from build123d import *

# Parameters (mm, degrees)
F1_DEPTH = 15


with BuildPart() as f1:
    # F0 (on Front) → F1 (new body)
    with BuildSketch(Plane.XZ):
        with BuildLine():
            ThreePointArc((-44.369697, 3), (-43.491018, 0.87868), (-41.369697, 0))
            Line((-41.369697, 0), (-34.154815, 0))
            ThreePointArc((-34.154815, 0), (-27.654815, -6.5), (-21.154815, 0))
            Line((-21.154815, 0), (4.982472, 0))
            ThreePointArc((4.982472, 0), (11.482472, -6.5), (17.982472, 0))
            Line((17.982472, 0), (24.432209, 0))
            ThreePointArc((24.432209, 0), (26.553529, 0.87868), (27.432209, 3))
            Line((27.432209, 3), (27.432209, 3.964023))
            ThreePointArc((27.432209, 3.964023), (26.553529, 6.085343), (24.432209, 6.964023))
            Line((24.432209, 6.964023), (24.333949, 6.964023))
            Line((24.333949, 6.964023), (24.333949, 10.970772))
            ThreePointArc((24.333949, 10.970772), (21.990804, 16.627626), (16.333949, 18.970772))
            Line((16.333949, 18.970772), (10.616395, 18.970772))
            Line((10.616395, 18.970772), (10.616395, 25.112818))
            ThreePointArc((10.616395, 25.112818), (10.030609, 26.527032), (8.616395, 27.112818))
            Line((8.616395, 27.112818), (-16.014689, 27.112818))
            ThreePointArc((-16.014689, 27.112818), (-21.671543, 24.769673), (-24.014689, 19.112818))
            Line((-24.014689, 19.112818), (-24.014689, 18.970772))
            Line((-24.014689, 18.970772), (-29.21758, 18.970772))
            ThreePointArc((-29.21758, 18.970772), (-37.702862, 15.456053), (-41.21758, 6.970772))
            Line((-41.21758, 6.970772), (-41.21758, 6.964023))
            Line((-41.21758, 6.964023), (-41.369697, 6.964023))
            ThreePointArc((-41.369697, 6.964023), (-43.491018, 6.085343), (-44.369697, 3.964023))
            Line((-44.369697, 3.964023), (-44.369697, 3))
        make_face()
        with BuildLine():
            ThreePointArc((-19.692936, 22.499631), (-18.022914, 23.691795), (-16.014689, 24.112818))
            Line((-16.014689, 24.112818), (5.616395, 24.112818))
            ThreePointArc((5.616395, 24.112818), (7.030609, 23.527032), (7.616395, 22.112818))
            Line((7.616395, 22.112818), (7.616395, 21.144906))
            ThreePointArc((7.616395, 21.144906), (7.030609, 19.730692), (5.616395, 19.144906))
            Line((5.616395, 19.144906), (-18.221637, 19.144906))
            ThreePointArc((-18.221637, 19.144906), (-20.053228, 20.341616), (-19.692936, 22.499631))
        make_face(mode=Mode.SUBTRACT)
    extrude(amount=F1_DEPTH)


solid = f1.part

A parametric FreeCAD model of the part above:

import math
import FreeCAD as App
import Part
import Sketcher

doc = App.newDocument("Part")
body = doc.addObject("PartDesign::Body", "Body")

# Sketch on XZ plane
sketch1 = body.newObject("Sketcher::SketchObject", "Sketch")
sketch1.AttachmentSupport = (doc.getObject("XZ_Plane"), [""])
sketch1.MapMode = "FlatFace"
sketch1.addGeometry(Part.ArcOfCircle(Part.Circle(App.Vector(-41.369698, 2.999999, 0), App.Vector(0, 0, 1), 2.999999), math.radians(179.99999), math.radians(270.00001)), False)
sketch1.addGeometry(Part.LineSegment(App.Vector(-41.369697, 0, 0), App.Vector(-34.154815, 0, 0)), False)
sketch1.addGeometry(Part.ArcOfCircle(Part.Circle(App.Vector(-27.654815, 0, 0), App.Vector(0, 0, 1), 6.5), math.radians(180), math.radians(360)), False)
sketch1.addGeometry(Part.LineSegment(App.Vector(-21.154815, 0, 0), App.Vector(4.982472, 0, 0)), False)
sketch1.addGeometry(Part.ArcOfCircle(Part.Circle(App.Vector(11.482472, 0, 0), App.Vector(0, 0, 1), 6.5), math.radians(180), math.radians(360)), False)
sketch1.addGeometry(Part.LineSegment(App.Vector(17.982472, 0, 0), App.Vector(24.432209, 0, 0)), False)
sketch1.addGeometry(Part.ArcOfCircle(Part.Circle(App.Vector(24.432208, 3.000001, 0), App.Vector(0, 0, 1), 3.000001), math.radians(-89.999978), math.radians(-0.000022)), False)
sketch1.addGeometry(Part.LineSegment(App.Vector(27.432209, 3, 0), App.Vector(27.432209, 3.964023, 0)), False)
sketch1.addGeometry(Part.ArcOfCircle(Part.Circle(App.Vector(24.432208, 3.964022, 0), App.Vector(0, 0, 1), 3.000001), math.radians(0.000022), math.radians(89.999978)), False)
sketch1.addGeometry(Part.LineSegment(App.Vector(24.432209, 6.964023, 0), App.Vector(24.333949, 6.964023, 0)), False)
sketch1.addGeometry(Part.LineSegment(App.Vector(24.333949, 6.964023, 0), App.Vector(24.333949, 10.970772, 0)), False)
sketch1.addGeometry(Part.ArcOfCircle(Part.Circle(App.Vector(16.33395, 10.970773, 0), App.Vector(0, 0, 1), 7.999999), math.radians(-0.000006), math.radians(90.000006)), False)
sketch1.addGeometry(Part.LineSegment(App.Vector(16.333949, 18.970772, 0), App.Vector(10.616395, 18.970772, 0)), False)
sketch1.addGeometry(Part.LineSegment(App.Vector(10.616395, 18.970772, 0), App.Vector(10.616395, 25.112818, 0)), False)
sketch1.addGeometry(Part.ArcOfCircle(Part.Circle(App.Vector(8.616396, 25.112819, 0), App.Vector(0, 0, 1), 1.999999), math.radians(-0.000043), math.radians(90.000043)), False)
sketch1.addGeometry(Part.LineSegment(App.Vector(8.616395, 27.112818, 0), App.Vector(-16.014689, 27.112818, 0)), False)
sketch1.addGeometry(Part.ArcOfCircle(Part.Circle(App.Vector(-16.01469, 19.112819, 0), App.Vector(0, 0, 1), 7.999999), math.radians(89.999994), math.radians(180.000006)), False)
sketch1.addGeometry(Part.LineSegment(App.Vector(-24.014689, 19.112818, 0), App.Vector(-24.014689, 18.970772, 0)), False)
sketch1.addGeometry(Part.LineSegment(App.Vector(-24.014689, 18.970772, 0), App.Vector(-29.21758, 18.970772, 0)), False)
sketch1.addGeometry(Part.ArcOfCircle(Part.Circle(App.Vector(-29.21758, 6.970772, 0), App.Vector(0, 0, 1), 12), math.radians(89.999998), math.radians(180.000002)), False)
sketch1.addGeometry(Part.LineSegment(App.Vector(-41.21758, 6.970772, 0), App.Vector(-41.21758, 6.964023, 0)), False)
sketch1.addGeometry(Part.LineSegment(App.Vector(-41.21758, 6.964023, 0), App.Vector(-41.369697, 6.964023, 0)), False)
sketch1.addGeometry(Part.ArcOfCircle(Part.Circle(App.Vector(-41.369698, 3.964024, 0), App.Vector(0, 0, 1), 2.999999), math.radians(89.99999), math.radians(180.00001)), False)
sketch1.addGeometry(Part.LineSegment(App.Vector(-44.369697, 3.964023, 0), App.Vector(-44.369697, 3, 0)), False)
sketch1.addGeometry(Part.ArcOfCircle(Part.Circle(App.Vector(-18.221637, 21.144906, 0), App.Vector(0, 0, 1), 2), math.radians(137.362122), math.radians(270.000002)), False)
sketch1.addGeometry(Part.ArcOfCircle(Part.Circle(App.Vector(-16.014688, 19.112814, 0), App.Vector(0, 0, 1), 5.000004), math.radians(90.000016), math.radians(137.36209)), False)
sketch1.addGeometry(Part.LineSegment(App.Vector(-16.014689, 24.112818, 0), App.Vector(5.616395, 24.112818, 0)), False)
sketch1.addGeometry(Part.ArcOfCircle(Part.Circle(App.Vector(5.616396, 22.112819, 0), App.Vector(0, 0, 1), 1.999999), math.radians(-0.000043), math.radians(90.000043)), False)
sketch1.addGeometry(Part.LineSegment(App.Vector(7.616395, 22.112818, 0), App.Vector(7.616395, 21.144906, 0)), False)
sketch1.addGeometry(Part.ArcOfCircle(Part.Circle(App.Vector(5.616396, 21.144905, 0), App.Vector(0, 0, 1), 1.999999), math.radians(-90.000043), math.radians(0.000043)), False)
sketch1.addGeometry(Part.LineSegment(App.Vector(5.616395, 19.144906, 0), App.Vector(-18.221637, 19.144906, 0)), False)
sketch1.addConstraint(Sketcher.Constraint("Tangent", 0, 2, 1, 1))
sketch1.addConstraint(Sketcher.Constraint("Coincident", 1, 2, 2, 1))
sketch1.addConstraint(Sketcher.Constraint("Coincident", 2, 2, 3, 1))
sketch1.addConstraint(Sketcher.Constraint("Coincident", 3, 2, 4, 1))
sketch1.addConstraint(Sketcher.Constraint("Coincident", 4, 2, 5, 1))
sketch1.addConstraint(Sketcher.Constraint("Tangent", 5, 2, 6, 1))
sketch1.addConstraint(Sketcher.Constraint("Tangent", 6, 2, 7, 1))
sketch1.addConstraint(Sketcher.Constraint("Tangent", 7, 2, 8, 1))
sketch1.addConstraint(Sketcher.Constraint("Tangent", 8, 2, 9, 1))
sketch1.addConstraint(Sketcher.Constraint("Coincident", 9, 2, 10, 1))
sketch1.addConstraint(Sketcher.Constraint("Tangent", 10, 2, 11, 1))
sketch1.addConstraint(Sketcher.Constraint("Tangent", 11, 2, 12, 1))
sketch1.addConstraint(Sketcher.Constraint("Coincident", 12, 2, 13, 1))
sketch1.addConstraint(Sketcher.Constraint("Tangent", 13, 2, 14, 1))
sketch1.addConstraint(Sketcher.Constraint("Tangent", 14, 2, 15, 1))
sketch1.addConstraint(Sketcher.Constraint("Tangent", 15, 2, 16, 1))
sketch1.addConstraint(Sketcher.Constraint("Tangent", 16, 2, 17, 1))
sketch1.addConstraint(Sketcher.Constraint("Coincident", 17, 2, 18, 1))
sketch1.addConstraint(Sketcher.Constraint("Tangent", 18, 2, 19, 1))
sketch1.addConstraint(Sketcher.Constraint("Tangent", 19, 2, 20, 1))
sketch1.addConstraint(Sketcher.Constraint("Coincident", 20, 2, 21, 1))
sketch1.addConstraint(Sketcher.Constraint("Tangent", 21, 2, 22, 1))
sketch1.addConstraint(Sketcher.Constraint("Tangent", 22, 2, 23, 1))
sketch1.addConstraint(Sketcher.Constraint("Tangent", 23, 2, 0, 1))
sketch1.addConstraint(Sketcher.Constraint("Tangent", 24, 1, 25, 2))
sketch1.addConstraint(Sketcher.Constraint("Tangent", 25, 1, 26, 1))
sketch1.addConstraint(Sketcher.Constraint("Tangent", 26, 2, 27, 2))
sketch1.addConstraint(Sketcher.Constraint("Tangent", 27, 1, 28, 1))
sketch1.addConstraint(Sketcher.Constraint("Tangent", 28, 2, 29, 2))
sketch1.addConstraint(Sketcher.Constraint("Tangent", 29, 1, 30, 1))
sketch1.addConstraint(Sketcher.Constraint("Tangent", 30, 2, 24, 2))
sketch1.addConstraint(Sketcher.Constraint("Horizontal", 1))
sketch1.addConstraint(Sketcher.Constraint("Horizontal", 3))
sketch1.addConstraint(Sketcher.Constraint("Horizontal", 5))
sketch1.addConstraint(Sketcher.Constraint("Vertical", 7))
sketch1.addConstraint(Sketcher.Constraint("Horizontal", 9))
sketch1.addConstraint(Sketcher.Constraint("Vertical", 10))
sketch1.addConstraint(Sketcher.Constraint("Horizontal", 12))
sketch1.addConstraint(Sketcher.Constraint("Vertical", 13))
sketch1.addConstraint(Sketcher.Constraint("Horizontal", 15))
sketch1.addConstraint(Sketcher.Constraint("Vertical", 17))
sketch1.addConstraint(Sketcher.Constraint("Horizontal", 18))
sketch1.addConstraint(Sketcher.Constraint("Horizontal", 21))
sketch1.addConstraint(Sketcher.Constraint("Vertical", 23))
sketch1.addConstraint(Sketcher.Constraint("Horizontal", 26))
sketch1.addConstraint(Sketcher.Constraint("Vertical", 28))
sketch1.addConstraint(Sketcher.Constraint("Horizontal", 30))
sketch1.addConstraint(Sketcher.Constraint("Coincident", 25, 3, 16, 3))
sketch1.addConstraint(Sketcher.Constraint("Equal", 2, 4))
sketch1.addConstraint(Sketcher.Constraint("Equal", 0, 6))
sketch1.addConstraint(Sketcher.Constraint("Equal", 6, 8))
sketch1.addConstraint(Sketcher.Constraint("Equal", 11, 16))
sketch1.addConstraint(Sketcher.Constraint("Equal", 8, 22))
sketch1.addConstraint(Sketcher.Constraint("Equal", 14, 24))
sketch1.addConstraint(Sketcher.Constraint("Equal", 24, 27))
sketch1.addConstraint(Sketcher.Constraint("Equal", 27, 29))
sketch1.addConstraint(Sketcher.Constraint("PointOnObject", 2, 3, -1))
sketch1.addConstraint(Sketcher.Constraint("PointOnObject", 4, 3, -1))
sketch1.addConstraint(Sketcher.Constraint("PointOnObject", 0, 2, -1))
sketch1.addConstraint(Sketcher.Constraint("PointOnObject", 2, 2, -1))
sketch1.addConstraint(Sketcher.Constraint("PointOnObject", 4, 2, -1))
sketch1.addConstraint(Sketcher.Constraint("Horizontal", 8, 3, 22, 3))
sketch1.addConstraint(Sketcher.Constraint("Horizontal", 12, 2, 17, 2))
sketch1.addConstraint(Sketcher.Constraint("Radius", 0, 2.999999))
sketch1.addConstraint(Sketcher.Constraint("Radius", 11, 7.999999))
sketch1.addConstraint(Sketcher.Constraint("Radius", 14, 1.999999))
sketch1.addConstraint(Sketcher.Constraint("Radius", 19, 12.0))
sketch1.addConstraint(Sketcher.Constraint("Radius", 2, 6.5))
sketch1.addConstraint(Sketcher.Constraint("DistanceX", 27, 3, 14, 3, 3.0))
sketch1.addConstraint(Sketcher.Constraint("DistanceY", 27, 3, 14, 3, 3.0))
sketch1.addConstraint(Sketcher.Constraint("DistanceX", 9, 2, 9, 1, 0.09826))
sketch1.addConstraint(Sketcher.Constraint("DistanceX", 18, 2, 18, 1, 5.202891))
sketch1.addConstraint(Sketcher.Constraint("DistanceY", 10, 1, 10, 2, 4.006749))
sketch1.addConstraint(Sketcher.Constraint("DistanceY", 20, 2, 20, 1, 0.006749))
sketch1.addConstraint(Sketcher.Constraint("DistanceX", 24, 1, 24, 3, 1.471299))
sketch1.addConstraint(Sketcher.Constraint("DistanceX", 1, 1, 1, 2, 7.214882))
sketch1.addConstraint(Sketcher.Constraint("DistanceX", 3, 1, 3, 2, 26.137287))
sketch1.addConstraint(Sketcher.Constraint("DistanceX", 5, 1, 5, 2, 6.449737))
sketch1.addConstraint(Sketcher.Constraint("DistanceX", 12, 2, 12, 1, 5.717554))
sketch1.addConstraint(Sketcher.Constraint("DistanceX", 15, 2, 15, 1, 24.631084))
sketch1.addConstraint(Sketcher.Constraint("DistanceY", 7, 1, 7, 2, 0.964023))
sketch1.addConstraint(Sketcher.Constraint("DistanceY", 13, 1, 13, 2, 6.142046))
sketch1.addConstraint(Sketcher.Constraint("DistanceX", -1, 1, 11, 3, 16.33395))
pad1 = body.newObject("PartDesign::Pad", "Pad")
pad1.Profile = sketch1
pad1.Length = 15

doc.recompute()
